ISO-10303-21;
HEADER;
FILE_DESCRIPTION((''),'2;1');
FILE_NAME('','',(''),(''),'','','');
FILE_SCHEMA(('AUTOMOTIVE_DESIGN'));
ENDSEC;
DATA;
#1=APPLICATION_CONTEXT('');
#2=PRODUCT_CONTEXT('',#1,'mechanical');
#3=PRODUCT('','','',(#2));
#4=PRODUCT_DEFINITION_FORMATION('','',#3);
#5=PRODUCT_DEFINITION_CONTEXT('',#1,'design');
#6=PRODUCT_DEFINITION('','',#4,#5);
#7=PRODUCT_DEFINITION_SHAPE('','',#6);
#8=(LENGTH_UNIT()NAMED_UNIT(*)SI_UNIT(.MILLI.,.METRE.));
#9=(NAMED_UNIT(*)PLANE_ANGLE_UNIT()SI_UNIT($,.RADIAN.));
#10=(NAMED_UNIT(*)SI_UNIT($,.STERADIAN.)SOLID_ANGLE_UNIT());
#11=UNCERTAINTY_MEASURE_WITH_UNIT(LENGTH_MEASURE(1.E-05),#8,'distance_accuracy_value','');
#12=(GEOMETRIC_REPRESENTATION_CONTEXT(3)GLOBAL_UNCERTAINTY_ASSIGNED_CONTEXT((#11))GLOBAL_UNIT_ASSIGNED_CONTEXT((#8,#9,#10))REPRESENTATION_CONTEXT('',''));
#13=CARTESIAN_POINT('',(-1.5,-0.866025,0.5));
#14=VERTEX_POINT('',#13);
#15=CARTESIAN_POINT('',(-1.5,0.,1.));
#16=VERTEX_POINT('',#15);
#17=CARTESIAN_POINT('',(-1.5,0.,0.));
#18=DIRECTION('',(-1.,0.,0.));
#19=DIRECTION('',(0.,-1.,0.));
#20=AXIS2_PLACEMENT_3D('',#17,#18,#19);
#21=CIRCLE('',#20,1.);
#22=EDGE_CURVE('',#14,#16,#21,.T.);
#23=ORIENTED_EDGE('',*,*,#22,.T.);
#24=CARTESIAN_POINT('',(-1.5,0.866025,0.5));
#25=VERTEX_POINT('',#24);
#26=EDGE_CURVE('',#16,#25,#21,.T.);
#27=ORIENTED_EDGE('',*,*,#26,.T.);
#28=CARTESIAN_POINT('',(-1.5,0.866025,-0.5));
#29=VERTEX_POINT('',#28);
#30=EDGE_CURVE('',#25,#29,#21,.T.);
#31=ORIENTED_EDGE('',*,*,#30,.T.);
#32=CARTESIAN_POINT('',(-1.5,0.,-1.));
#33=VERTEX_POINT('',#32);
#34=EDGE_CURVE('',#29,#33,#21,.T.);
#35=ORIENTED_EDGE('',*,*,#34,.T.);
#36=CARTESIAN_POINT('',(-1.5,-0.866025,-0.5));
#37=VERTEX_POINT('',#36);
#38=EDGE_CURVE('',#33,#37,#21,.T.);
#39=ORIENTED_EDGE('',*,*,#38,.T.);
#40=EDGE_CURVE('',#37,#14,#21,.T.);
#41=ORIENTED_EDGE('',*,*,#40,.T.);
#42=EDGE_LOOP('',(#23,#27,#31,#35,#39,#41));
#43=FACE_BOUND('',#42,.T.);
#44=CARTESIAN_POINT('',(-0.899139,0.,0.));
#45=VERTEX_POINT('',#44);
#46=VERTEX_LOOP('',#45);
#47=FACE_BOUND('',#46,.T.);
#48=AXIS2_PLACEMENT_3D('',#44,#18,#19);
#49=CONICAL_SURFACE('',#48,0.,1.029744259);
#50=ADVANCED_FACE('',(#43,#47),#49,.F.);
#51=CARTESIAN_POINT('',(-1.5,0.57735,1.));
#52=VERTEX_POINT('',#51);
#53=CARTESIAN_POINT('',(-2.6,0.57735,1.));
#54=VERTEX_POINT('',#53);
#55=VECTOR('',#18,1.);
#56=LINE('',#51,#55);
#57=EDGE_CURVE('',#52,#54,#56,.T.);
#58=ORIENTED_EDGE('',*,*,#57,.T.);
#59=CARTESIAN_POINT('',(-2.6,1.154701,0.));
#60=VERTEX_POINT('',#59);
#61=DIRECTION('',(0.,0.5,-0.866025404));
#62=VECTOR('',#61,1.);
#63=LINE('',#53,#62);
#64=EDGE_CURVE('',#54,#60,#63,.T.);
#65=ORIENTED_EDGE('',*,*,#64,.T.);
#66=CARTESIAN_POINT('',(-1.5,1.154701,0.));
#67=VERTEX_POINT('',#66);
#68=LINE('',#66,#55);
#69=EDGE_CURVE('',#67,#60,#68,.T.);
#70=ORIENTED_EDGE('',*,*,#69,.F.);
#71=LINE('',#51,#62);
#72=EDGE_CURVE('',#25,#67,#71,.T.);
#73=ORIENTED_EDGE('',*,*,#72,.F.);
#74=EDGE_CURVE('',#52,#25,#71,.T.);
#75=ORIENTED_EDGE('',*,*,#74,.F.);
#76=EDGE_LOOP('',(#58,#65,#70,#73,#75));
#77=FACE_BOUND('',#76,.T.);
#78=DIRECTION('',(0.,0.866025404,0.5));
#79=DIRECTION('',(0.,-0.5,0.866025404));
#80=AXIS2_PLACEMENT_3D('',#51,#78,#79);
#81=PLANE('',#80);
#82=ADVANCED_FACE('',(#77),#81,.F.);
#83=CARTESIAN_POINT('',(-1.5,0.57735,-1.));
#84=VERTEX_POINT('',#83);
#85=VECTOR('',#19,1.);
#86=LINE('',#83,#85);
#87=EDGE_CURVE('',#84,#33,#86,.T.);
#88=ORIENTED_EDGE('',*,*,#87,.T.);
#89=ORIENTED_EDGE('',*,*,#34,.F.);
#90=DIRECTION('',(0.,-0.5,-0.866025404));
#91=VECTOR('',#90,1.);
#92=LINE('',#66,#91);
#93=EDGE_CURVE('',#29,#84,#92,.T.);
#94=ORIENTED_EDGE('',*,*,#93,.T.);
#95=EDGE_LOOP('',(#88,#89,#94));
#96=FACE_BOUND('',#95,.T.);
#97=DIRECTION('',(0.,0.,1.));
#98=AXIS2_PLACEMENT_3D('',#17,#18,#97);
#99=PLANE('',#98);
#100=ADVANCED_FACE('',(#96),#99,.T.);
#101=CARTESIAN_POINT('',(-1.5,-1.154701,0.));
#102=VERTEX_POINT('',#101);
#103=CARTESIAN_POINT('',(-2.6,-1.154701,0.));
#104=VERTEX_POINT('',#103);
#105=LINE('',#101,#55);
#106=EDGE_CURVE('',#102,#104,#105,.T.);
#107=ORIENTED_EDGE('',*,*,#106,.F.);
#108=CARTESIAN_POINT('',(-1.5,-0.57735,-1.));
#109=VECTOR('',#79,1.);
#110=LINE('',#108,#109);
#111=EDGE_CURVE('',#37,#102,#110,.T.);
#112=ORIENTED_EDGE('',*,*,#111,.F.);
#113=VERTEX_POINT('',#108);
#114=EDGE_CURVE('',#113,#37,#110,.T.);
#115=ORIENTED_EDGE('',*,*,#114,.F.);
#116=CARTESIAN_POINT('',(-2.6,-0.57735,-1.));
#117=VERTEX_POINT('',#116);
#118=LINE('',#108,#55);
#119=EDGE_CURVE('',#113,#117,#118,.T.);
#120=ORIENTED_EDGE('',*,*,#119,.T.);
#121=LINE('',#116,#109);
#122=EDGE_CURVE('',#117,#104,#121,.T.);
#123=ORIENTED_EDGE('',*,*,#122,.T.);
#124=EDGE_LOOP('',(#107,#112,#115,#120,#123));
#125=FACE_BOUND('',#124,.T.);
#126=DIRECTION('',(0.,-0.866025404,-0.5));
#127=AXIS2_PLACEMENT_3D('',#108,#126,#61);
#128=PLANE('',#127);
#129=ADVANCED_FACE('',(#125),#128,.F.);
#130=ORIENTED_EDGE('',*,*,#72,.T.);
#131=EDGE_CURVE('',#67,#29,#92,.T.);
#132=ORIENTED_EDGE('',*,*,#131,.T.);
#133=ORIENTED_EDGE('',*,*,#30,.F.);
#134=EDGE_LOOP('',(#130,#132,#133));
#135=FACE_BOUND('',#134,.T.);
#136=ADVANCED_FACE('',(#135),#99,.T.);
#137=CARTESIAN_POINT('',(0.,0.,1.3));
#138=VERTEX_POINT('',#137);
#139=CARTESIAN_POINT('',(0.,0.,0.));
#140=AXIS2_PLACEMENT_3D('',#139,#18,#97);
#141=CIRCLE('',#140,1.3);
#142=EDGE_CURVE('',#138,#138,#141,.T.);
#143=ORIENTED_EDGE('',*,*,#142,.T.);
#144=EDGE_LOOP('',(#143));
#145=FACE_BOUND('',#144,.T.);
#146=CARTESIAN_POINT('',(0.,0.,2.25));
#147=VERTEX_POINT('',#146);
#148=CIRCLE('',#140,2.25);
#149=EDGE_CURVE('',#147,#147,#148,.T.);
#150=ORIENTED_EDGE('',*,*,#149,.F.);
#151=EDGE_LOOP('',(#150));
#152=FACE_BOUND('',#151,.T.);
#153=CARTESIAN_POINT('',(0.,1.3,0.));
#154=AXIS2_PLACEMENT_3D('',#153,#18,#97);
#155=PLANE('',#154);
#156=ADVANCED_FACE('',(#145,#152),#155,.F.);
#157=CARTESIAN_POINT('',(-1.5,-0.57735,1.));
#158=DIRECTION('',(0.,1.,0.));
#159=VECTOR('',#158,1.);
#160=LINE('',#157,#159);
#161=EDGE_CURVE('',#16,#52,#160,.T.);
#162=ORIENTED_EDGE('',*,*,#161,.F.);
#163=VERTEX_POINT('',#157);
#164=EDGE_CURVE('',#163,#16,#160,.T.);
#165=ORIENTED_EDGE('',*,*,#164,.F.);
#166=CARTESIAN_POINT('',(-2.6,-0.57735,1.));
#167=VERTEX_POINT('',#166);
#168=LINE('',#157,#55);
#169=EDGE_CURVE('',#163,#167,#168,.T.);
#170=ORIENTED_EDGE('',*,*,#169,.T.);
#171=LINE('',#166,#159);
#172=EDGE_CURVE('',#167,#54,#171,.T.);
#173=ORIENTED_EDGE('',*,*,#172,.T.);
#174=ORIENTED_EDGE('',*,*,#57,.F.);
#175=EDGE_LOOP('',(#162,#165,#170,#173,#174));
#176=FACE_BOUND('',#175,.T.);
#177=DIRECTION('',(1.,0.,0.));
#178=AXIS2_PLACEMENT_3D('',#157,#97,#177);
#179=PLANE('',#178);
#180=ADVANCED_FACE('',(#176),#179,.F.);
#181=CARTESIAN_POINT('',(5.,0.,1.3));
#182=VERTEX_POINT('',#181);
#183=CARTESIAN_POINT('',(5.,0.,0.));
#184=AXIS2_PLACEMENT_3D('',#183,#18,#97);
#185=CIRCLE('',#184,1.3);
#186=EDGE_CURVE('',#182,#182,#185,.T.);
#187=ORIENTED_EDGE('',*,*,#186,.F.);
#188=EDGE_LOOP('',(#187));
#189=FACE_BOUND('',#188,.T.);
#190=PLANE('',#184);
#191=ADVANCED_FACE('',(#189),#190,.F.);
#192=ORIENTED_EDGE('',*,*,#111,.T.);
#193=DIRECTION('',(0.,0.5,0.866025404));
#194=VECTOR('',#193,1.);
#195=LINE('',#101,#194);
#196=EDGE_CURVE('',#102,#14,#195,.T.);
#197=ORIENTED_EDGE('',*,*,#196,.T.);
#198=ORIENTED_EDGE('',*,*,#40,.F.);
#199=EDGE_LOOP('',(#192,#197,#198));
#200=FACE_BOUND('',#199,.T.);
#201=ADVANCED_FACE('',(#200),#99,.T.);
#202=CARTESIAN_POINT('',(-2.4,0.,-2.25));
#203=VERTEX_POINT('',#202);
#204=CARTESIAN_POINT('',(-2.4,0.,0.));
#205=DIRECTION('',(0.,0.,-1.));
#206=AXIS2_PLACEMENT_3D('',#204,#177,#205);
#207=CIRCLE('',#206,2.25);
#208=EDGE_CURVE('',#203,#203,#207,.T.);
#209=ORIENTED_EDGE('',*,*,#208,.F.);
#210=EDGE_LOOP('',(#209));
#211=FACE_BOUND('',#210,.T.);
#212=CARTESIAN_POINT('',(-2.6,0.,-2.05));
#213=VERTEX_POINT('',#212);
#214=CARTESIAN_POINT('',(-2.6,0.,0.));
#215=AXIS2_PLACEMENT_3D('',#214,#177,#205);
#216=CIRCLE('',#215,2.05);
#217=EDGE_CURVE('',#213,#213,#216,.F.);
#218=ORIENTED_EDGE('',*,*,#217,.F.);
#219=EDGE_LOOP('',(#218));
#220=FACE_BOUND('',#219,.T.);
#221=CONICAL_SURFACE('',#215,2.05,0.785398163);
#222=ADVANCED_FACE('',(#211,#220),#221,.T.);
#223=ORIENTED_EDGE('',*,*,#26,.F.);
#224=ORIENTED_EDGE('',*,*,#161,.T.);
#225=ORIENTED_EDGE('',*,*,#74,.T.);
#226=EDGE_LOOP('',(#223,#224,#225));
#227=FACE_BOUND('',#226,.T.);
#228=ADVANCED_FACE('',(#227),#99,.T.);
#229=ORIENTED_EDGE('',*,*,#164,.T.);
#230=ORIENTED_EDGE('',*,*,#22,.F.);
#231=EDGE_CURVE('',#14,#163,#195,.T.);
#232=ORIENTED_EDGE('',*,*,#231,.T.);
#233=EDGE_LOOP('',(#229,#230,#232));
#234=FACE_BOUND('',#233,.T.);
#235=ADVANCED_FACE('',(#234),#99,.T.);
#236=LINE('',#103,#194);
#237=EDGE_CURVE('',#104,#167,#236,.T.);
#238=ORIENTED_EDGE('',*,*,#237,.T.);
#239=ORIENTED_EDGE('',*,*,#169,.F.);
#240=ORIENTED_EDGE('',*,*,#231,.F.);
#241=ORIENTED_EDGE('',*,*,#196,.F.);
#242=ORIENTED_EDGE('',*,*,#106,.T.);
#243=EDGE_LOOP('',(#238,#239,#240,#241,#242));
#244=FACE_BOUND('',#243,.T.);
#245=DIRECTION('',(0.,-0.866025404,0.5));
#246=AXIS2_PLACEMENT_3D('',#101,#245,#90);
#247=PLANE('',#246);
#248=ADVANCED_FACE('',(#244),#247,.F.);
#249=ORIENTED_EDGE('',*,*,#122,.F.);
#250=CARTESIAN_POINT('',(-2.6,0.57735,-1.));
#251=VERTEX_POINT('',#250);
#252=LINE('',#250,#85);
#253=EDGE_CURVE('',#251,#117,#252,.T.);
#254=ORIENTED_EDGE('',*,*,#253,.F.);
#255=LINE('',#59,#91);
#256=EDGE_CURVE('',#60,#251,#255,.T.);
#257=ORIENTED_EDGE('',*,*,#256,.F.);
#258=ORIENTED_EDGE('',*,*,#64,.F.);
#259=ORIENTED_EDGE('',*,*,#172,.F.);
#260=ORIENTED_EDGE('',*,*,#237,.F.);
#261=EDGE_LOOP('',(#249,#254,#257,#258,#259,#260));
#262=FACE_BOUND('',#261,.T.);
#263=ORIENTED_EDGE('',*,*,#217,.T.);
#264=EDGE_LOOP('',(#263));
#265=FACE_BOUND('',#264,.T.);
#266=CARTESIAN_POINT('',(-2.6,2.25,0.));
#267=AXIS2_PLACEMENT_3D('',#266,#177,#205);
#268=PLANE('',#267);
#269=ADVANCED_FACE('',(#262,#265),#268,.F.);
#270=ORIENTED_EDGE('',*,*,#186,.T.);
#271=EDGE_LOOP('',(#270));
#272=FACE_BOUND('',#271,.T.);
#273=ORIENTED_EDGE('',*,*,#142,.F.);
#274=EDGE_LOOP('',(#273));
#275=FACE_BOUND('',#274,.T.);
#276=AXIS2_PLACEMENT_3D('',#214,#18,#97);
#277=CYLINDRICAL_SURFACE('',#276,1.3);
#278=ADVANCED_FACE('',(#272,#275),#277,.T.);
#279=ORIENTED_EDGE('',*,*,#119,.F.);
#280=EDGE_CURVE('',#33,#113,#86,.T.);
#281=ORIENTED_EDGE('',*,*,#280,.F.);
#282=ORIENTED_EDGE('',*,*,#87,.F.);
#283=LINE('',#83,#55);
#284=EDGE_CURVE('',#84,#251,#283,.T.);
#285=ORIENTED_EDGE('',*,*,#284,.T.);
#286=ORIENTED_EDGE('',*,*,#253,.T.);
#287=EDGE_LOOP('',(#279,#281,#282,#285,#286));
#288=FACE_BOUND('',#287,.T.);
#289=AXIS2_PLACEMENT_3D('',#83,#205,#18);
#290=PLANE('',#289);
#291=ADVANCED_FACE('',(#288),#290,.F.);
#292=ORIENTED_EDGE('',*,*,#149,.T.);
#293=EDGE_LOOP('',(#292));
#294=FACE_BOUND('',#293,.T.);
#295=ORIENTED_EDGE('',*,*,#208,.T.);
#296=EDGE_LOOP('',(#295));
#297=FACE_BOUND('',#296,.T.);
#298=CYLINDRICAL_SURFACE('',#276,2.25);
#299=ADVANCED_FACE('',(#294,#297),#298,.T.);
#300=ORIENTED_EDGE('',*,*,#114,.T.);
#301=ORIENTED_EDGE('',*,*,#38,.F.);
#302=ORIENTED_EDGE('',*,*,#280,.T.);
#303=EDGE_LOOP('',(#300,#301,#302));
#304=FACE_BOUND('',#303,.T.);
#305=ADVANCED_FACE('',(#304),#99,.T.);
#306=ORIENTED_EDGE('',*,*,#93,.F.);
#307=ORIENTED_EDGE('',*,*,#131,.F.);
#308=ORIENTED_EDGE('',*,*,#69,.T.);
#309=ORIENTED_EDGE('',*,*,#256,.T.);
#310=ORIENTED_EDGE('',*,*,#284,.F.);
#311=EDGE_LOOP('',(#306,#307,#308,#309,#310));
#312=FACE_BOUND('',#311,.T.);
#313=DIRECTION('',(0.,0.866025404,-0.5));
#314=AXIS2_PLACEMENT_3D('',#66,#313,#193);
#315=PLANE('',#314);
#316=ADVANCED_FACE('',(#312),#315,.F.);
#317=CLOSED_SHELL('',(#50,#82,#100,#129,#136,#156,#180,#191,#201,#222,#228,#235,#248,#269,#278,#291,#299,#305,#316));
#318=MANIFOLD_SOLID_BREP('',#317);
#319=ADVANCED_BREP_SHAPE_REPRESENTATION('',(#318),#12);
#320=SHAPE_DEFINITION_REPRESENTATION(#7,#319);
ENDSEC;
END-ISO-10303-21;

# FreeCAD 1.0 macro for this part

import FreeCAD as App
import Part
import Sketcher

V = App.Vector
Q = App.Units.Quantity


def edges_at(feature, points):
    """Names of the edges that pass closest to the given points."""
    edges = feature.Shape.Edges
    near = lambda p: min(range(len(edges)), key=lambda i: edges[i].distToShape(Part.Vertex(*p))[0])
    return sorted({f"Edge{near(p) + 1}" for p in points})


def add_polygon(sketch, points):
    """Adds a closed chain of lines whose ends are joined by coincident constraints."""
    first, n = sketch.GeometryCount, len(points)
    for a, b in zip(points, points[1:] + points[:1]):
        sketch.addGeometry(Part.LineSegment(App.Vector(*a, 0), App.Vector(*b, 0)), False)
    for i in range(n):
        sketch.addConstraint(Sketcher.Constraint("Coincident", first + i, 2, first + (i + 1) % n, 1))

doc = App.newDocument("Part")
body = doc.addObject("PartDesign::Body", "Body")

sketch1 = doc.addObject("Sketcher::SketchObject", "Sketch")
body.addObject(sketch1)
sketch1.AttachmentSupport = (doc.XY_Plane, [""])
sketch1.MapMode = "FlatFace"
add_polygon(sketch1, [(-2.6, 0), (5, 0), (5, 1.3), (0, 1.3), (0, 2.2), (-2.6, 2.2)])
sketch1.addConstraint([
    Sketcher.Constraint("Horizontal", 0),
    Sketcher.Constraint("Vertical", 1),
    Sketcher.Constraint("Horizontal", 2),
    Sketcher.Constraint("Vertical", 3),
    Sketcher.Constraint("Horizontal", 4),
    Sketcher.Constraint("Vertical", 5),
    Sketcher.Constraint("PointOnObject", 0, 2, -1),
    Sketcher.Constraint("PointOnObject", 2, 2, -2),
    Sketcher.Constraint("DistanceX", 2, 2, 2, 1, 5.0),
    Sketcher.Constraint("DistanceX", 0, 1, 0, 2, 7.6),
    Sketcher.Constraint("DistanceY", 1, 1, 1, 2, 1.3),
    Sketcher.Constraint("DistanceY", 3, 1, 3, 2, 0.95),
])
revolution = doc.addObject("PartDesign::Revolution", "Revolution")
body.addObject(revolution)
revolution.Profile = sketch1
revolution.ReferenceAxis = (sketch1, ["H_Axis"])
revolution.Angle = 360
doc.recompute()

chamfer = doc.addObject("PartDesign::Chamfer", "Chamfer")
body.addObject(chamfer)
chamfer.Base = (revolution, edges_at(revolution, [(-2.6, 0, -2.25)]))
chamfer.Size = 0.2

sketch2 = doc.addObject("Sketcher::SketchObject", "Sketch001")
body.addObject(sketch2)
sketch2.AttachmentSupport = (doc.XY_Plane, [""])
sketch2.MapMode = "FlatFace"
add_polygon(sketch2, [(-0.9, 0), (-1.5, 1), (-2.6, 1), (-2.6, 0)])
sketch2.addConstraint([
    Sketcher.Constraint("Horizontal", 1),
    Sketcher.Constraint("Vertical", 2),
    Sketcher.Constraint("Horizontal", 3),
    Sketcher.Constraint("PointOnObject", 2, 2, -1),
    Sketcher.Constraint("DistanceY", 2, 2, 2, 1, 1.0),
    Sketcher.Constraint("Angle", 0, Q("121 deg")),
    Sketcher.Constraint("DistanceX", 1, 2, 1, 1, 1.1),
    Sketcher.Constraint("DistanceX", 0, 2, -1, 1, 1.5),
])
groove = doc.addObject("PartDesign::Groove", "Groove")
body.addObject(groove)
groove.Profile = sketch2
groove.ReferenceAxis = (sketch2, ["H_Axis"])
groove.Angle = 360

sketch3 = doc.addObject("Sketcher::SketchObject", "Sketch002")
body.addObject(sketch3)
sketch3.AttachmentSupport = (doc.YZ_Plane, [""])
sketch3.MapMode = "FlatFace"
sketch3.AttachmentOffset = App.Placement(V(0, 0, -2.6), App.Rotation())
add_polygon(sketch3, [(-1.2, 0), (-0.6, 1), (0.6, 1), (1.2, 0), (0.6, -1), (-0.6, -1)])
sketch3.addConstraint([
    Sketcher.Constraint("Horizontal", 1),
    Sketcher.Constraint("Horizontal", 4),
    Sketcher.Constraint("Symmetric", 0, 2, 3, 2, -1, 1),
    Sketcher.Constraint("Symmetric", 2, 2, 5, 2, -1, 1),
    Sketcher.Constraint("PointOnObject", 2, 2, -1),
    Sketcher.Constraint("Parallel", 2, 5),
    Sketcher.Constraint("Vertical", 1, 2, 3, 2),
    Sketcher.Constraint("Angle", 0, Q("60 deg")),
    Sketcher.Constraint("DistanceY", -1, 1, 0, 2, 1.0),
    Sketcher.Constraint("DistanceX", 1, 1, 1, 2, 1.154701),
])
pocket1 = doc.addObject("PartDesign::Pocket", "Pocket")
body.addObject(pocket1)
pocket1.Profile = sketch3
pocket1.Length = 1.1
pocket1.Reversed = True

doc.recompute()
